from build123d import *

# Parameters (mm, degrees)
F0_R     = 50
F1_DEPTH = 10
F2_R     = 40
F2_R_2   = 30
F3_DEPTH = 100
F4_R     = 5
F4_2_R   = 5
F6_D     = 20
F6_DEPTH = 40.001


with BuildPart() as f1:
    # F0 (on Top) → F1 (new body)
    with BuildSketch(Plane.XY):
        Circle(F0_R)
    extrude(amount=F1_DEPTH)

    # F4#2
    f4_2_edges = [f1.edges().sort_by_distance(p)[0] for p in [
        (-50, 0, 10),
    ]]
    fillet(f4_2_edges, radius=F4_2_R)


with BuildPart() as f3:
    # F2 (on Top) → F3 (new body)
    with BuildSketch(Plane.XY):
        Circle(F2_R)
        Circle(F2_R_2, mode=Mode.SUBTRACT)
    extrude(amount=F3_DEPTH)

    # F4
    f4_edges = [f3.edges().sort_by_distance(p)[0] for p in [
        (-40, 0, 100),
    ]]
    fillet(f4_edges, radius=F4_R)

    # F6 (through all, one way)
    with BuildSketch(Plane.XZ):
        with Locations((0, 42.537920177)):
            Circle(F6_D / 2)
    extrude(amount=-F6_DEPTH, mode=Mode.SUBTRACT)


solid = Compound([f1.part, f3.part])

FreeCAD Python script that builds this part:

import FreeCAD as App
import Part
import Sketcher

V = App.Vector


def edges_at(feature, points):
    """Names of the edges that pass closest to the given points."""
    edges = feature.Shape.Edges
    near = lambda p: min(range(len(edges)), key=lambda i: edges[i].distToShape(Part.Vertex(*p))[0])
    return sorted({f"Edge{near(p) + 1}" for p in points})

doc = App.newDocument("Part")
body = doc.addObject("PartDesign::Body", "Body")

sketch1 = body.newObject("Sketcher::SketchObject", "Sketch")
sketch1.AttachmentSupport = (doc.getObject("XY_Plane"), [""])
sketch1.MapMode = "FlatFace"
sketch1.addGeometry(Part.Circle(V(0, 0, 0), V(0, 0, 1), 50), False)
sketch1.addConstraint([
    Sketcher.Constraint("Coincident", 0, 3, -1, 1),
    Sketcher.Constraint("Diameter", 0, 100.0),
])
pad1 = body.newObject("PartDesign::Pad", "Pad")
pad1.Profile = sketch1
pad1.Length = 10
doc.recompute()

fillet = body.newObject("PartDesign::Fillet", "Fillet")
fillet.Base = (pad1, edges_at(pad1, [(-50, 0, 10)]))
fillet.Radius = 5
body2 = doc.addObject("PartDesign::Body", "Body001")

sketch2 = body2.newObject("Sketcher::SketchObject", "Sketch001")
sketch2.AttachmentSupport = (doc.getObject("XY_Plane001"), [""])
sketch2.MapMode = "FlatFace"
sketch2.addGeometry([
    Part.Circle(V(0, 0, 0), V(0, 0, 1), 40),
    Part.Circle(V(0, 0, 0), V(0, 0, 1), 30),
], False)
sketch2.addConstraint([
    Sketcher.Constraint("Coincident", 0, 3, -1, 1),
    Sketcher.Constraint("Coincident", 1, 3, -1, 1),
    Sketcher.Constraint("Diameter", 0, 80.0),
    Sketcher.Constraint("Diameter", 1, 60.0),
])
pad2 = body2.newObject("PartDesign::Pad", "Pad001")
pad2.Profile = sketch2
pad2.Length = 100
doc.recompute()

fillet2 = body2.newObject("PartDesign::Fillet", "Fillet001")
fillet2.Base = (pad2, edges_at(pad2, [(-40, 0, 100)]))
fillet2.Radius = 5

sketch3 = body2.newObject("Sketcher::SketchObject", "Sketch002")
sketch3.AttachmentSupport = (doc.getObject("XZ_Plane001"), [""])
sketch3.MapMode = "FlatFace"
sketch3.addGeometry(Part.Circle(V(0, 42.53792, 0), V(0, 0, 1), 10), False)
sketch3.addConstraint([
    Sketcher.Constraint("PointOnObject", 0, 3, -2),
    Sketcher.Constraint("Diameter", 0, 20.0),
    Sketcher.Constraint("DistanceY", -1, 1, 0, 3, 42.53792),
])
pocket1 = body2.newObject("PartDesign::Pocket", "Pocket")
pocket1.Profile = sketch3
pocket1.Type = "ThroughAll"

doc.recompute()
